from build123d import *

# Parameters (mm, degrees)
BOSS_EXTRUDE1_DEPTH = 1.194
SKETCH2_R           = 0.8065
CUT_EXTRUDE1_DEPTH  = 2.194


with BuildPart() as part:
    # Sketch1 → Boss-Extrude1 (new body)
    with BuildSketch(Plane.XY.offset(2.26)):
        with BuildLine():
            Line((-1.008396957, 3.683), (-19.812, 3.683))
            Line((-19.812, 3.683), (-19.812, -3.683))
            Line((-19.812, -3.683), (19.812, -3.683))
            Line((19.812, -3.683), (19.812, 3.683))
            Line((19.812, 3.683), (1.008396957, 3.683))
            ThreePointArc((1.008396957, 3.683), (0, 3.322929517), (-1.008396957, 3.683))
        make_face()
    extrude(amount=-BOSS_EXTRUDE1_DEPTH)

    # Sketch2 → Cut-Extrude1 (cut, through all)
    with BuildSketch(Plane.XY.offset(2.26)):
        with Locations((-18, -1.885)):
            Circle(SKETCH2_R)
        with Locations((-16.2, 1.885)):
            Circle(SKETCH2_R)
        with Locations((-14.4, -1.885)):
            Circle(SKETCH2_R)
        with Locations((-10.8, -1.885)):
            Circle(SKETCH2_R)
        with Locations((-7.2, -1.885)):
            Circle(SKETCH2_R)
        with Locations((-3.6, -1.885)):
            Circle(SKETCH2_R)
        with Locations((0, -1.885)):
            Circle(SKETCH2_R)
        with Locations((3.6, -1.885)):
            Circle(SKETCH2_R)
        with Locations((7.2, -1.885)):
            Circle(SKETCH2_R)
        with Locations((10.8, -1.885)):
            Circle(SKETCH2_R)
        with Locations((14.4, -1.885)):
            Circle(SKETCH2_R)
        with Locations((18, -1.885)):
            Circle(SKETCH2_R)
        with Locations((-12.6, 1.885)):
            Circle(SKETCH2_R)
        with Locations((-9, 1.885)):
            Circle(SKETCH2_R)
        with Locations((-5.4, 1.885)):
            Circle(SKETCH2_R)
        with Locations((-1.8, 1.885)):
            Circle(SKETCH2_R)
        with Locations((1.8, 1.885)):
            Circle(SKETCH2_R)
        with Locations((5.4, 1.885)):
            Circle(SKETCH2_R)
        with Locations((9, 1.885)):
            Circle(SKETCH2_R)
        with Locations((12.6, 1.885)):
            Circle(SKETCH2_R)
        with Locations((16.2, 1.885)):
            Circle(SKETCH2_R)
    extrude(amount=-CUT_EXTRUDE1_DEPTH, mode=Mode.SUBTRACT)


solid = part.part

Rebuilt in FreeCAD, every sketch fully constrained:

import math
import FreeCAD as App
import Part
import Sketcher
from FreeCAD import Vector
Q = App.Units.Quantity

doc = App.newDocument("Part")
body = doc.addObject("PartDesign::Body", "Body")

# Sketch on XY plane
sketch1 = body.newObject("Sketcher::SketchObject", "Sketch")
sketch1.AttachmentSupport = (doc.getObject("XY_Plane"), [""])
sketch1.MapMode = "FlatFace"
sketch1.AttachmentOffset = App.Placement(Vector(0, 0, 2.26), App.Rotation())
sketch1.addGeometry(Part.LineSegment(Vector(-1, 3.7, 0), Vector(-19.8, 3.7, 0)), False)
sketch1.addGeometry(Part.LineSegment(Vector(-19.8, 3.7, 0), Vector(-19.8, -3.7, 0)), False)
sketch1.addGeometry(Part.LineSegment(Vector(-19.8, -3.7, 0), Vector(19.8, -3.7, 0)), False)
sketch1.addGeometry(Part.LineSegment(Vector(19.8, -3.7, 0), Vector(19.8, 3.7, 0)), False)
sketch1.addGeometry(Part.LineSegment(Vector(19.8, 3.7, 0), Vector(1, 3.7, 0)), False)
sketch1.addGeometry(Part.ArcOfCircle(Part.Circle(Vector(0, 4.9, 0), Vector(0, 0, 1), 1.6), math.radians(-129), math.radians(-51)), False)
sketch1.addConstraint(Sketcher.Constraint("Coincident", 0, 2, 1, 1))
sketch1.addConstraint(Sketcher.Constraint("Coincident", 1, 2, 2, 1))
sketch1.addConstraint(Sketcher.Constraint("Coincident", 2, 2, 3, 1))
sketch1.addConstraint(Sketcher.Constraint("Coincident", 3, 2, 4, 1))
sketch1.addConstraint(Sketcher.Constraint("Coincident", 4, 2, 5, 2))
sketch1.addConstraint(Sketcher.Constraint("Coincident", 5, 1, 0, 1))
sketch1.addConstraint(Sketcher.Constraint("Horizontal", 0))
sketch1.addConstraint(Sketcher.Constraint("Vertical", 1))
sketch1.addConstraint(Sketcher.Constraint("Horizontal", 2))
sketch1.addConstraint(Sketcher.Constraint("Vertical", 3))
sketch1.addConstraint(Sketcher.Constraint("Horizontal", 4))
sketch1.addConstraint(Sketcher.Constraint("Symmetric", 0, 2, 2, 2, -1, 1))
sketch1.addConstraint(Sketcher.Constraint("Symmetric", 4, 2, 5, 1, -2))
sketch1.addConstraint(Sketcher.Constraint("DistanceX", 2, 1, 2, 2, Q("1.56 in")))
sketch1.addConstraint(Sketcher.Constraint("DistanceY", 1, 2, 1, 1, Q("0.29 in")))
sketch1.addConstraint(Sketcher.Constraint("Radius", 5, Q("1.59207 mm")))
sketch1.addConstraint(Sketcher.Constraint("DistanceY", -1, 1, 5, 3, Q("4.915 mm")))
pad1 = body.newObject("PartDesign::Pad", "Pad")
pad1.Profile = sketch1
pad1.Length = 1.194
pad1.Reversed = True

# Sketch on XY plane
sketch2 = body.newObject("Sketcher::SketchObject", "Sketch001")
sketch2.AttachmentSupport = (doc.getObject("XY_Plane"), [""])
sketch2.MapMode = "FlatFace"
sketch2.AttachmentOffset = App.Placement(Vector(0, 0, 2.26), App.Rotation())
sketch2.addGeometry(Part.Circle(Vector(-18, -1.9, 0), Vector(0, 0, 1), 0.8), False)
sketch2.addGeometry(Part.Circle(Vector(-16.2, 1.9, 0), Vector(0, 0, 1), 0.8), False)
sketch2.addGeometry(Part.Circle(Vector(-14.4, -1.9, 0), Vector(0, 0, 1), 0.8), False)
sketch2.addGeometry(Part.Circle(Vector(-10.8, -1.9, 0), Vector(0, 0, 1), 0.8), False)
sketch2.addGeometry(Part.Circle(Vector(-7.2, -1.9, 0), Vector(0, 0, 1), 0.8), False)
sketch2.addGeometry(Part.Circle(Vector(-3.6, -1.9, 0), Vector(0, 0, 1), 0.8), False)
sketch2.addGeometry(Part.Circle(Vector(0, -1.9, 0), Vector(0, 0, 1), 0.8), False)
sketch2.addGeometry(Part.Circle(Vector(3.6, -1.9, 0), Vector(0, 0, 1), 0.8), False)
sketch2.addGeometry(Part.Circle(Vector(7.2, -1.9, 0), Vector(0, 0, 1), 0.8), False)
sketch2.addGeometry(Part.Circle(Vector(10.8, -1.9, 0), Vector(0, 0, 1), 0.8), False)
sketch2.addGeometry(Part.Circle(Vector(14.4, -1.9, 0), Vector(0, 0, 1), 0.8), False)
sketch2.addGeometry(Part.Circle(Vector(18, -1.9, 0), Vector(0, 0, 1), 0.8), False)
sketch2.addGeometry(Part.Circle(Vector(-12.6, 1.9, 0), Vector(0, 0, 1), 0.8), False)
sketch2.addGeometry(Part.Circle(Vector(-9, 1.9, 0), Vector(0, 0, 1), 0.8), False)
sketch2.addGeometry(Part.Circle(Vector(-5.4, 1.9, 0), Vector(0, 0, 1), 0.8), False)
sketch2.addGeometry(Part.Circle(Vector(-1.8, 1.9, 0), Vector(0, 0, 1), 0.8), False)
sketch2.addGeometry(Part.Circle(Vector(1.8, 1.9, 0), Vector(0, 0, 1), 0.8), False)
sketch2.addGeometry(Part.Circle(Vector(5.4, 1.9, 0), Vector(0, 0, 1), 0.8), False)
sketch2.addGeometry(Part.Circle(Vector(9, 1.9, 0), Vector(0, 0, 1), 0.8), False)
sketch2.addGeometry(Part.Circle(Vector(12.6, 1.9, 0), Vector(0, 0, 1), 0.8), False)
sketch2.addGeometry(Part.Circle(Vector(16.2, 1.9, 0), Vector(0, 0, 1), 0.8), False)
sketch2.addConstraint(Sketcher.Constraint("Equal", 0, 1))
sketch2.addConstraint(Sketcher.Constraint("Equal", 1, 2))
sketch2.addConstraint(Sketcher.Constraint("Equal", 2, 3))
sketch2.addConstraint(Sketcher.Constraint("Equal", 3, 4))
sketch2.addConstraint(Sketcher.Constraint("Equal", 4, 5))
sketch2.addConstraint(Sketcher.Constraint("Equal", 5, 6))
sketch2.addConstraint(Sketcher.Constraint("Equal", 6, 7))
sketch2.addConstraint(Sketcher.Constraint("Equal", 7, 8))
sketch2.addConstraint(Sketcher.Constraint("Equal", 8, 9))
sketch2.addConstraint(Sketcher.Constraint("Equal", 9, 10))
sketch2.addConstraint(Sketcher.Constraint("Equal", 10, 11))
sketch2.addConstraint(Sketcher.Constraint("Equal", 11, 12))
sketch2.addConstraint(Sketcher.Constraint("Equal", 12, 13))
sketch2.addConstraint(Sketcher.Constraint("Equal", 13, 14))
sketch2.addConstraint(Sketcher.Constraint("Equal", 14, 15))
sketch2.addConstraint(Sketcher.Constraint("Equal", 15, 16))
sketch2.addConstraint(Sketcher.Constraint("Equal", 16, 17))
sketch2.addConstraint(Sketcher.Constraint("Equal", 17, 18))
sketch2.addConstraint(Sketcher.Constraint("Equal", 18, 19))
sketch2.addConstraint(Sketcher.Constraint("Equal", 19, 20))
sketch2.addConstraint(Sketcher.Constraint("Symmetric", 5, 3, 7, 3, -2))
sketch2.addConstraint(Sketcher.Constraint("Symmetric", 4, 3, 8, 3, -2))
sketch2.addConstraint(Sketcher.Constraint("Symmetric", 3, 3, 9, 3, -2))
sketch2.addConstraint(Sketcher.Constraint("Symmetric", 2, 3, 10, 3, -2))
sketch2.addConstraint(Sketcher.Constraint("Symmetric", 0, 3, 11, 3, -2))
sketch2.addConstraint(Sketcher.Constraint("Symmetric", 15, 3, 16, 3, -2))
sketch2.addConstraint(Sketcher.Constraint("Symmetric", 14, 3, 17, 3, -2))
sketch2.addConstraint(Sketcher.Constraint("Symmetric", 13, 3, 18, 3, -2))
sketch2.addConstraint(Sketcher.Constraint("Symmetric", 12, 3, 19, 3, -2))
sketch2.addConstraint(Sketcher.Constraint("Symmetric", 1, 3, 20, 3, -2))
sketch2.addConstraint(Sketcher.Constraint("PointOnObject", 6, 3, -2))
sketch2.addConstraint(Sketcher.Constraint("Horizontal", 0, 3, 2, 3))
sketch2.addConstraint(Sketcher.Constraint("Horizontal", 2, 3, 3, 3))
sketch2.addConstraint(Sketcher.Constraint("Horizontal", 3, 3, 4, 3))
sketch2.addConstraint(Sketcher.Constraint("Horizontal", 4, 3, 5, 3))
sketch2.addConstraint(Sketcher.Constraint("Horizontal", 5, 3, 6, 3))
sketch2.addConstraint(Sketcher.Constraint("Horizontal", 1, 3, 12, 3))
sketch2.addConstraint(Sketcher.Constraint("Horizontal", 12, 3, 13, 3))
sketch2.addConstraint(Sketcher.Constraint("Horizontal", 13, 3, 14, 3))
sketch2.addConstraint(Sketcher.Constraint("Horizontal", 14, 3, 15, 3))
sketch2.addConstraint(Sketcher.Constraint("Diameter", 0, Q("1.613 mm")))
sketch2.addConstraint(Sketcher.Constraint("DistanceX", 0, 3, -1, 1, Q("18 mm")))
sketch2.addConstraint(Sketcher.Constraint("DistanceY", 0, 3, -1, 1, Q("1.885 mm")))
sketch2.addConstraint(Sketcher.Constraint("DistanceX", 1, 3, -1, 1, Q("16.2 mm")))
sketch2.addConstraint(Sketcher.Constraint("DistanceY", -1, 1, 1, 3, Q("1.885 mm")))
sketch2.addConstraint(Sketcher.Constraint("DistanceX", 2, 3, -1, 1, Q("14.4 mm")))
sketch2.addConstraint(Sketcher.Constraint("DistanceX", 3, 3, -1, 1, Q("10.8 mm")))
sketch2.addConstraint(Sketcher.Constraint("DistanceX", 4, 3, -1, 1, Q("7.2 mm")))
sketch2.addConstraint(Sketcher.Constraint("DistanceX", 5, 3, -1, 1, Q("3.6 mm")))
sketch2.addConstraint(Sketcher.Constraint("DistanceX", 12, 3, -1, 1, Q("12.6 mm")))
sketch2.addConstraint(Sketcher.Constraint("DistanceX", 13, 3, -1, 1, Q("9 mm")))
sketch2.addConstraint(Sketcher.Constraint("DistanceX", 14, 3, -1, 1, Q("5.4 mm")))
sketch2.addConstraint(Sketcher.Constraint("DistanceX", 15, 3, -1, 1, Q("1.8 mm")))
pocket1 = body.newObject("PartDesign::Pocket", "Pocket")
pocket1.Profile = sketch2
pocket1.Type = "ThroughAll"

doc.recompute()
